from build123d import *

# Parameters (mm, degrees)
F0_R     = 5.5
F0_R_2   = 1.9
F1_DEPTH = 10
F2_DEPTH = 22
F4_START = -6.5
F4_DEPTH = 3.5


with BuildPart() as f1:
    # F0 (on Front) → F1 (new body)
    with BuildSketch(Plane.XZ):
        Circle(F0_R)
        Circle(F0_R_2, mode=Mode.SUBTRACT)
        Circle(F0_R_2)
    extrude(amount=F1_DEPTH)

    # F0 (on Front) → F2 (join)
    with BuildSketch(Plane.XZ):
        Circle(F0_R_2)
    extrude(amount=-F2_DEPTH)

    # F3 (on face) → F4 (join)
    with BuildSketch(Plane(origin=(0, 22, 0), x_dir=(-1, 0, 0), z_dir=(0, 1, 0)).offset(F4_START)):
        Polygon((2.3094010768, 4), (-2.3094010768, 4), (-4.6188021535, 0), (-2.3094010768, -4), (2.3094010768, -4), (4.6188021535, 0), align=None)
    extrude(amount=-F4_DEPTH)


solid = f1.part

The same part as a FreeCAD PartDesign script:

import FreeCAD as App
import Part
import Sketcher
from FreeCAD import Vector
Q = App.Units.Quantity


def add_polygon(sketch, points):
    """Adds a closed chain of lines whose ends are joined by coincident constraints."""
    first, n = sketch.GeometryCount, len(points)
    for a, b in zip(points, points[1:] + points[:1]):
        sketch.addGeometry(Part.LineSegment(App.Vector(*a, 0), App.Vector(*b, 0)), False)
    for i in range(n):
        sketch.addConstraint(Sketcher.Constraint("Coincident", first + i, 2, first + (i + 1) % n, 1))

doc = App.newDocument("Part")
params = doc.addObject("Spreadsheet::Sheet", "Params")
for row, (alias, value) in enumerate([
    ("sketch1_diameter", "11 mm"),
    ("pad1_length", "10 mm"),
    ("sketch2_diameter", "3.8 mm"),
    ("pad2_length", "22 mm"),
    ("pad3_length", "3.5 mm"),
], start=1):
    params.set(f"A{row}", alias)
    params.set(f"B{row}", "=" + value)
    params.setAlias(f"B{row}", alias)

body = doc.addObject("PartDesign::Body", "Body")

# Sketch on XZ plane
sketch1 = body.newObject("Sketcher::SketchObject", "Sketch")
sketch1.AttachmentSupport = (doc.getObject("XZ_Plane"), [""])
sketch1.MapMode = "FlatFace"
sketch1.addGeometry(Part.Circle(Vector(0, 0, 0), Vector(0, 0, 1), 6), False)
sketch1.addConstraint([
    Sketcher.Constraint("Coincident", 0, 3, -1, 1),
    Sketcher.Constraint("Diameter", 0, Q("11 mm")),
])
sketch1.setExpression("Constraints[1]", "Params.sketch1_diameter")
pad1 = body.newObject("PartDesign::Pad", "Pad")
pad1.Profile = sketch1
pad1.setExpression("Length", "Params.pad1_length")

# Sketch on XZ plane
sketch2 = body.newObject("Sketcher::SketchObject", "Sketch001")
sketch2.AttachmentSupport = (doc.getObject("XZ_Plane"), [""])
sketch2.MapMode = "FlatFace"
sketch2.addGeometry(Part.Circle(Vector(0, 0, 0), Vector(0, 0, 1), 1.9), False)
sketch2.addConstraint([
    Sketcher.Constraint("Coincident", 0, 3, -1, 1),
    Sketcher.Constraint("Diameter", 0, Q("3.8 mm")),
])
sketch2.setExpression("Constraints[1]", "Params.sketch2_diameter")
pad2 = body.newObject("PartDesign::Pad", "Pad001")
pad2.Profile = sketch2
pad2.setExpression("Length", "Params.pad2_length")
pad2.Reversed = True

# Sketch on XZ plane
sketch3 = body.newObject("Sketcher::SketchObject", "Sketch002")
sketch3.AttachmentSupport = (doc.getObject("XZ_Plane"), [""])
sketch3.MapMode = "FlatFace"
sketch3.AttachmentOffset = App.Placement(Vector(0, 0, -15.5), App.Rotation())
add_polygon(sketch3, [(-2.3, 4), (2.3, 4), (4.6, 0), (2.3, -4), (-2.3, -4), (-4.6, 0)])  # lines 0-5
sketch3.addConstraint([
    Sketcher.Constraint("Horizontal", 0),
    Sketcher.Constraint("Horizontal", 3),
    Sketcher.Constraint("Symmetric", 0, 2, 3, 2, -1, 1),
    Sketcher.Constraint("Symmetric", 1, 2, 4, 2, -1, 1),
    Sketcher.Constraint("PointOnObject", 1, 2, -1),
    Sketcher.Constraint("Parallel", 2, 5),
    Sketcher.Constraint("Vertical", 0, 2, 2, 2),
    Sketcher.Constraint("Angle", 1, Q("-60 deg")),
    Sketcher.Constraint("DistanceY", -1, 1, 0, 2, Q("4 mm")),
    Sketcher.Constraint("DistanceX", -1, 1, 0, 2, Q("2.309401 mm")),
])
pad3 = body.newObject("PartDesign::Pad", "Pad002")
pad3.Profile = sketch3
pad3.setExpression("Length", "Params.pad3_length")

doc.recompute()
